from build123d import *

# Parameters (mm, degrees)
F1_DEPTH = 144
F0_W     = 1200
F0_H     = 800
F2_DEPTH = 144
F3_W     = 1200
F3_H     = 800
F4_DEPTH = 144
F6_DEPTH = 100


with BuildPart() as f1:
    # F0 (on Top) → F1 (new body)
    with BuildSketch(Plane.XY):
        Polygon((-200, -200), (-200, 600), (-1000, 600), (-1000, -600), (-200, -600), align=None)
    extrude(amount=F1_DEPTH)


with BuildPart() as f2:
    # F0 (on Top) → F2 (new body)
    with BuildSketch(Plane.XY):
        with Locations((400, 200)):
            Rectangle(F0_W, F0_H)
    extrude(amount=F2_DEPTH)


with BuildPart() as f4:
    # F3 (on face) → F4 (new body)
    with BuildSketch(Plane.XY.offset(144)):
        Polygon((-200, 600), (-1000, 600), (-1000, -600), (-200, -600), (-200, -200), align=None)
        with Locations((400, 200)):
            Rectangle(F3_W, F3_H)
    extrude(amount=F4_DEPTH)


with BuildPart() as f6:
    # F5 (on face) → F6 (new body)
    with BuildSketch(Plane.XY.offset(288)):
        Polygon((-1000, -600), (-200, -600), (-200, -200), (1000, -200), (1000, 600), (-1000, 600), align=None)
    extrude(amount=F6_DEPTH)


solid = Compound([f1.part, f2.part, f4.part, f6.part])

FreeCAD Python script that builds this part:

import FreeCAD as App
import Part
import Sketcher
from FreeCAD import Vector
Q = App.Units.Quantity

doc = App.newDocument("Part")
body = doc.addObject("PartDesign::Body", "Body")

sketch1 = body.newObject("Sketcher::SketchObject", "Sketch")
sketch1.AttachmentSupport = (doc.getObject("XY_Plane"), [""])
sketch1.MapMode = "FlatFace"
sketch1.addGeometry(Part.LineSegment(Vector(-200, 600, 0), Vector(-1000, 600, 0)), False)
sketch1.addGeometry(Part.LineSegment(Vector(-1000, 600, 0), Vector(-1000, -600, 0)), False)
sketch1.addGeometry(Part.LineSegment(Vector(-1000, -600, 0), Vector(-200, -600, 0)), False)
sketch1.addGeometry(Part.LineSegment(Vector(-200, -600, 0), Vector(-200, 600, 0)), False)
sketch1.addConstraint(Sketcher.Constraint("Coincident", 0, 2, 1, 1))
sketch1.addConstraint(Sketcher.Constraint("Coincident", 1, 2, 2, 1))
sketch1.addConstraint(Sketcher.Constraint("Coincident", 2, 2, 3, 1))
sketch1.addConstraint(Sketcher.Constraint("Coincident", 3, 2, 0, 1))
sketch1.addConstraint(Sketcher.Constraint("Horizontal", 0))
sketch1.addConstraint(Sketcher.Constraint("Vertical", 1))
sketch1.addConstraint(Sketcher.Constraint("Horizontal", 2))
sketch1.addConstraint(Sketcher.Constraint("Vertical", 3))
sketch1.addConstraint(Sketcher.Constraint("DistanceX", 0, 2, 0, 1, Q("800 mm")))
sketch1.addConstraint(Sketcher.Constraint("DistanceY", 1, 2, 1, 1, Q("1200 mm")))
sketch1.addConstraint(Sketcher.Constraint("DistanceX", 0, 2, -1, 1, Q("1000 mm")))
sketch1.addConstraint(Sketcher.Constraint("DistanceY", -1, 1, 0, 2, Q("600 mm")))
pad1 = body.newObject("PartDesign::Pad", "Pad")
pad1.Profile = sketch1
pad1.Length = 144
body2 = doc.addObject("PartDesign::Body", "Body001")

sketch2 = body2.newObject("Sketcher::SketchObject", "Sketch001")
sketch2.AttachmentSupport = (doc.getObject("XY_Plane001"), [""])
sketch2.MapMode = "FlatFace"
sketch2.addGeometry(Part.LineSegment(Vector(-200, 600, 0), Vector(-200, -200, 0)), False)
sketch2.addGeometry(Part.LineSegment(Vector(-200, -200, 0), Vector(1000, -200, 0)), False)
sketch2.addGeometry(Part.LineSegment(Vector(1000, -200, 0), Vector(1000, 600, 0)), False)
sketch2.addGeometry(Part.LineSegment(Vector(1000, 600, 0), Vector(-200, 600, 0)), False)
sketch2.addConstraint(Sketcher.Constraint("Coincident", 0, 2, 1, 1))
sketch2.addConstraint(Sketcher.Constraint("Coincident", 1, 2, 2, 1))
sketch2.addConstraint(Sketcher.Constraint("Coincident", 2, 2, 3, 1))
sketch2.addConstraint(Sketcher.Constraint("Coincident", 3, 2, 0, 1))
sketch2.addConstraint(Sketcher.Constraint("Vertical", 0))
sketch2.addConstraint(Sketcher.Constraint("Horizontal", 1))
sketch2.addConstraint(Sketcher.Constraint("Vertical", 2))
sketch2.addConstraint(Sketcher.Constraint("Horizontal", 3))
sketch2.addConstraint(Sketcher.Constraint("DistanceX", 1, 1, 1, 2, Q("1200 mm")))
sketch2.addConstraint(Sketcher.Constraint("DistanceY", 0, 2, 0, 1, Q("800 mm")))
sketch2.addConstraint(Sketcher.Constraint("DistanceX", 0, 2, -1, 1, Q("200 mm")))
sketch2.addConstraint(Sketcher.Constraint("DistanceY", 0, 2, -1, 1, Q("200 mm")))
pad2 = body2.newObject("PartDesign::Pad", "Pad001")
pad2.Profile = sketch2
pad2.Length = 144
body3 = doc.addObject("PartDesign::Body", "Body002")

sketch3 = body3.newObject("Sketcher::SketchObject", "Sketch002")
sketch3.AttachmentSupport = (doc.getObject("XY_Plane002"), [""])
sketch3.MapMode = "FlatFace"
sketch3.AttachmentOffset = App.Placement(Vector(0, 0, 144), App.Rotation())
sketch3.addGeometry(Part.LineSegment(Vector(-1000, 600, 0), Vector(-1000, -600, 0)), False)
sketch3.addGeometry(Part.LineSegment(Vector(-1000, -600, 0), Vector(-200, -600, 0)), False)
sketch3.addGeometry(Part.LineSegment(Vector(-200, -600, 0), Vector(-200, -200, 0)), False)
sketch3.addGeometry(Part.LineSegment(Vector(-200, -200, 0), Vector(1000, -200, 0)), False)
sketch3.addGeometry(Part.LineSegment(Vector(1000, -200, 0), Vector(1000, 600, 0)), False)
sketch3.addGeometry(Part.LineSegment(Vector(1000, 600, 0), Vector(-1000, 600, 0)), False)
sketch3.addConstraint(Sketcher.Constraint("Coincident", 0, 2, 1, 1))
sketch3.addConstraint(Sketcher.Constraint("Coincident", 1, 2, 2, 1))
sketch3.addConstraint(Sketcher.Constraint("Coincident", 2, 2, 3, 1))
sketch3.addConstraint(Sketcher.Constraint("Coincident", 3, 2, 4, 1))
sketch3.addConstraint(Sketcher.Constraint("Coincident", 4, 2, 5, 1))
sketch3.addConstraint(Sketcher.Constraint("Coincident", 5, 2, 0, 1))
sketch3.addConstraint(Sketcher.Constraint("Vertical", 0))
sketch3.addConstraint(Sketcher.Constraint("Horizontal", 1))
sketch3.addConstraint(Sketcher.Constraint("Vertical", 2))
sketch3.addConstraint(Sketcher.Constraint("Horizontal", 3))
sketch3.addConstraint(Sketcher.Constraint("Vertical", 4))
sketch3.addConstraint(Sketcher.Constraint("Horizontal", 5))
sketch3.addConstraint(Sketcher.Constraint("Symmetric", 0, 2, 4, 2, -1, 1))
sketch3.addConstraint(Sketcher.Constraint("Equal", 3, 0))
sketch3.addConstraint(Sketcher.Constraint("Equal", 1, 4))
sketch3.addConstraint(Sketcher.Constraint("DistanceX", 1, 1, 1, 2, Q("800 mm")))
sketch3.addConstraint(Sketcher.Constraint("DistanceX", 3, 1, 3, 2, Q("1200 mm")))
pad3 = body3.newObject("PartDesign::Pad", "Pad002")
pad3.Profile = sketch3
pad3.Length = 144
body4 = doc.addObject("PartDesign::Body", "Body003")

sketch4 = body4.newObject("Sketcher::SketchObject", "Sketch003")
sketch4.AttachmentSupport = (doc.getObject("XY_Plane003"), [""])
sketch4.MapMode = "FlatFace"
sketch4.AttachmentOffset = App.Placement(Vector(0, 0, 288), App.Rotation())
sketch4.addGeometry(Part.LineSegment(Vector(-1000, -600, 0), Vector(-200, -600, 0)), False)
sketch4.addGeometry(Part.LineSegment(Vector(-200, -600, 0), Vector(-200, -200, 0)), False)
sketch4.addGeometry(Part.LineSegment(Vector(-200, -200, 0), Vector(1000, -200, 0)), False)
sketch4.addGeometry(Part.LineSegment(Vector(1000, -200, 0), Vector(1000, 600, 0)), False)
sketch4.addGeometry(Part.LineSegment(Vector(1000, 600, 0), Vector(-1000, 600, 0)), False)
sketch4.addGeometry(Part.LineSegment(Vector(-1000, 600, 0), Vector(-1000, -600, 0)), False)
sketch4.addConstraint(Sketcher.Constraint("Coincident", 0, 2, 1, 1))
sketch4.addConstraint(Sketcher.Constraint("Coincident", 1, 2, 2, 1))
sketch4.addConstraint(Sketcher.Constraint("Coincident", 2, 2, 3, 1))
sketch4.addConstraint(Sketcher.Constraint("Coincident", 3, 2, 4, 1))
sketch4.addConstraint(Sketcher.Constraint("Coincident", 4, 2, 5, 1))
sketch4.addConstraint(Sketcher.Constraint("Coincident", 5, 2, 0, 1))
sketch4.addConstraint(Sketcher.Constraint("Horizontal", 0))
sketch4.addConstraint(Sketcher.Constraint("Vertical", 1))
sketch4.addConstraint(Sketcher.Constraint("Horizontal", 2))
sketch4.addConstraint(Sketcher.Constraint("Vertical", 3))
sketch4.addConstraint(Sketcher.Constraint("Horizontal", 4))
sketch4.addConstraint(Sketcher.Constraint("Vertical", 5))
sketch4.addConstraint(Sketcher.Constraint("Symmetric", 3, 2, 5, 2, -1, 1))
sketch4.addConstraint(Sketcher.Constraint("Equal", 0, 3))
sketch4.addConstraint(Sketcher.Constraint("Equal", 2, 5))
sketch4.addConstraint(Sketcher.Constraint("DistanceX", 0, 1, 0, 2, Q("800 mm")))
sketch4.addConstraint(Sketcher.Constraint("DistanceX", 2, 1, 2, 2, Q("1200 mm")))
pad4 = body4.newObject("PartDesign::Pad", "Pad003")
pad4.Profile = sketch4
pad4.Length = 100

doc.recompute()
